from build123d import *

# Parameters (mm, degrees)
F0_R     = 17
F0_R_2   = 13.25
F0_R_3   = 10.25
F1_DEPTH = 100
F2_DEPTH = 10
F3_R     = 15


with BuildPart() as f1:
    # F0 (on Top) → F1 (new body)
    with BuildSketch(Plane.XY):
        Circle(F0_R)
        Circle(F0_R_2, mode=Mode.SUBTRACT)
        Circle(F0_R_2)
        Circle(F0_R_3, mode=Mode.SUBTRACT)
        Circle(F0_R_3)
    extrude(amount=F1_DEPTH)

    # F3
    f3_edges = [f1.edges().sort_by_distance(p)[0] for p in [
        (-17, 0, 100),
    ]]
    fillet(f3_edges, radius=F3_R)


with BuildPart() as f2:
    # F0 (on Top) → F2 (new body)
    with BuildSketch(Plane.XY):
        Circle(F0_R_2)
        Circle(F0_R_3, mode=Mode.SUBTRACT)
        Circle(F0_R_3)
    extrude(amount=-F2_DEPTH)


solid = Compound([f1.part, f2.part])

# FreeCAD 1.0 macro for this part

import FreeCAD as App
import Part
import Sketcher

V = App.Vector
Q = App.Units.Quantity


def edges_at(feature, points):
    """Names of the edges that pass closest to the given points."""
    edges = feature.Shape.Edges
    near = lambda p: min(range(len(edges)), key=lambda i: edges[i].distToShape(Part.Vertex(*p))[0])
    return sorted({f"Edge{near(p) + 1}" for p in points})

doc = App.newDocument("Part")
body = doc.addObject("PartDesign::Body", "Body")

# Sketch on XY plane
sketch1 = body.newObject("Sketcher::SketchObject", "Sketch")
sketch1.AttachmentSupport = (doc.getObject("XY_Plane"), [""])
sketch1.MapMode = "FlatFace"
sketch1.addGeometry(Part.Circle(V(0, 0, 0), V(0, 0, 1), 17), False)
sketch1.addConstraint([
    Sketcher.Constraint("Coincident", 0, 3, -1, 1),
    Sketcher.Constraint("Diameter", 0, Q("34 mm")),
])
pad1 = body.newObject("PartDesign::Pad", "Pad")
pad1.Profile = sketch1
pad1.Length = 100
doc.recompute()

fillet = body.newObject("PartDesign::Fillet", "Fillet")
fillet.Base = (pad1, edges_at(pad1, [(-17, 0, 100)]))
fillet.Radius = 15
body2 = doc.addObject("PartDesign::Body", "Body001")

# Sketch on XY plane
sketch2 = body2.newObject("Sketcher::SketchObject", "Sketch001")
sketch2.AttachmentSupport = (doc.getObject("XY_Plane001"), [""])
sketch2.MapMode = "FlatFace"
sketch2.addGeometry(Part.Circle(V(0, 0, 0), V(0, 0, 1), 13), False)
sketch2.addConstraint([
    Sketcher.Constraint("Coincident", 0, 3, -1, 1),
    Sketcher.Constraint("Diameter", 0, Q("26.5 mm")),
])
pad2 = body2.newObject("PartDesign::Pad", "Pad001")
pad2.Profile = sketch2
pad2.Length = 10
pad2.Reversed = True

doc.recompute()
